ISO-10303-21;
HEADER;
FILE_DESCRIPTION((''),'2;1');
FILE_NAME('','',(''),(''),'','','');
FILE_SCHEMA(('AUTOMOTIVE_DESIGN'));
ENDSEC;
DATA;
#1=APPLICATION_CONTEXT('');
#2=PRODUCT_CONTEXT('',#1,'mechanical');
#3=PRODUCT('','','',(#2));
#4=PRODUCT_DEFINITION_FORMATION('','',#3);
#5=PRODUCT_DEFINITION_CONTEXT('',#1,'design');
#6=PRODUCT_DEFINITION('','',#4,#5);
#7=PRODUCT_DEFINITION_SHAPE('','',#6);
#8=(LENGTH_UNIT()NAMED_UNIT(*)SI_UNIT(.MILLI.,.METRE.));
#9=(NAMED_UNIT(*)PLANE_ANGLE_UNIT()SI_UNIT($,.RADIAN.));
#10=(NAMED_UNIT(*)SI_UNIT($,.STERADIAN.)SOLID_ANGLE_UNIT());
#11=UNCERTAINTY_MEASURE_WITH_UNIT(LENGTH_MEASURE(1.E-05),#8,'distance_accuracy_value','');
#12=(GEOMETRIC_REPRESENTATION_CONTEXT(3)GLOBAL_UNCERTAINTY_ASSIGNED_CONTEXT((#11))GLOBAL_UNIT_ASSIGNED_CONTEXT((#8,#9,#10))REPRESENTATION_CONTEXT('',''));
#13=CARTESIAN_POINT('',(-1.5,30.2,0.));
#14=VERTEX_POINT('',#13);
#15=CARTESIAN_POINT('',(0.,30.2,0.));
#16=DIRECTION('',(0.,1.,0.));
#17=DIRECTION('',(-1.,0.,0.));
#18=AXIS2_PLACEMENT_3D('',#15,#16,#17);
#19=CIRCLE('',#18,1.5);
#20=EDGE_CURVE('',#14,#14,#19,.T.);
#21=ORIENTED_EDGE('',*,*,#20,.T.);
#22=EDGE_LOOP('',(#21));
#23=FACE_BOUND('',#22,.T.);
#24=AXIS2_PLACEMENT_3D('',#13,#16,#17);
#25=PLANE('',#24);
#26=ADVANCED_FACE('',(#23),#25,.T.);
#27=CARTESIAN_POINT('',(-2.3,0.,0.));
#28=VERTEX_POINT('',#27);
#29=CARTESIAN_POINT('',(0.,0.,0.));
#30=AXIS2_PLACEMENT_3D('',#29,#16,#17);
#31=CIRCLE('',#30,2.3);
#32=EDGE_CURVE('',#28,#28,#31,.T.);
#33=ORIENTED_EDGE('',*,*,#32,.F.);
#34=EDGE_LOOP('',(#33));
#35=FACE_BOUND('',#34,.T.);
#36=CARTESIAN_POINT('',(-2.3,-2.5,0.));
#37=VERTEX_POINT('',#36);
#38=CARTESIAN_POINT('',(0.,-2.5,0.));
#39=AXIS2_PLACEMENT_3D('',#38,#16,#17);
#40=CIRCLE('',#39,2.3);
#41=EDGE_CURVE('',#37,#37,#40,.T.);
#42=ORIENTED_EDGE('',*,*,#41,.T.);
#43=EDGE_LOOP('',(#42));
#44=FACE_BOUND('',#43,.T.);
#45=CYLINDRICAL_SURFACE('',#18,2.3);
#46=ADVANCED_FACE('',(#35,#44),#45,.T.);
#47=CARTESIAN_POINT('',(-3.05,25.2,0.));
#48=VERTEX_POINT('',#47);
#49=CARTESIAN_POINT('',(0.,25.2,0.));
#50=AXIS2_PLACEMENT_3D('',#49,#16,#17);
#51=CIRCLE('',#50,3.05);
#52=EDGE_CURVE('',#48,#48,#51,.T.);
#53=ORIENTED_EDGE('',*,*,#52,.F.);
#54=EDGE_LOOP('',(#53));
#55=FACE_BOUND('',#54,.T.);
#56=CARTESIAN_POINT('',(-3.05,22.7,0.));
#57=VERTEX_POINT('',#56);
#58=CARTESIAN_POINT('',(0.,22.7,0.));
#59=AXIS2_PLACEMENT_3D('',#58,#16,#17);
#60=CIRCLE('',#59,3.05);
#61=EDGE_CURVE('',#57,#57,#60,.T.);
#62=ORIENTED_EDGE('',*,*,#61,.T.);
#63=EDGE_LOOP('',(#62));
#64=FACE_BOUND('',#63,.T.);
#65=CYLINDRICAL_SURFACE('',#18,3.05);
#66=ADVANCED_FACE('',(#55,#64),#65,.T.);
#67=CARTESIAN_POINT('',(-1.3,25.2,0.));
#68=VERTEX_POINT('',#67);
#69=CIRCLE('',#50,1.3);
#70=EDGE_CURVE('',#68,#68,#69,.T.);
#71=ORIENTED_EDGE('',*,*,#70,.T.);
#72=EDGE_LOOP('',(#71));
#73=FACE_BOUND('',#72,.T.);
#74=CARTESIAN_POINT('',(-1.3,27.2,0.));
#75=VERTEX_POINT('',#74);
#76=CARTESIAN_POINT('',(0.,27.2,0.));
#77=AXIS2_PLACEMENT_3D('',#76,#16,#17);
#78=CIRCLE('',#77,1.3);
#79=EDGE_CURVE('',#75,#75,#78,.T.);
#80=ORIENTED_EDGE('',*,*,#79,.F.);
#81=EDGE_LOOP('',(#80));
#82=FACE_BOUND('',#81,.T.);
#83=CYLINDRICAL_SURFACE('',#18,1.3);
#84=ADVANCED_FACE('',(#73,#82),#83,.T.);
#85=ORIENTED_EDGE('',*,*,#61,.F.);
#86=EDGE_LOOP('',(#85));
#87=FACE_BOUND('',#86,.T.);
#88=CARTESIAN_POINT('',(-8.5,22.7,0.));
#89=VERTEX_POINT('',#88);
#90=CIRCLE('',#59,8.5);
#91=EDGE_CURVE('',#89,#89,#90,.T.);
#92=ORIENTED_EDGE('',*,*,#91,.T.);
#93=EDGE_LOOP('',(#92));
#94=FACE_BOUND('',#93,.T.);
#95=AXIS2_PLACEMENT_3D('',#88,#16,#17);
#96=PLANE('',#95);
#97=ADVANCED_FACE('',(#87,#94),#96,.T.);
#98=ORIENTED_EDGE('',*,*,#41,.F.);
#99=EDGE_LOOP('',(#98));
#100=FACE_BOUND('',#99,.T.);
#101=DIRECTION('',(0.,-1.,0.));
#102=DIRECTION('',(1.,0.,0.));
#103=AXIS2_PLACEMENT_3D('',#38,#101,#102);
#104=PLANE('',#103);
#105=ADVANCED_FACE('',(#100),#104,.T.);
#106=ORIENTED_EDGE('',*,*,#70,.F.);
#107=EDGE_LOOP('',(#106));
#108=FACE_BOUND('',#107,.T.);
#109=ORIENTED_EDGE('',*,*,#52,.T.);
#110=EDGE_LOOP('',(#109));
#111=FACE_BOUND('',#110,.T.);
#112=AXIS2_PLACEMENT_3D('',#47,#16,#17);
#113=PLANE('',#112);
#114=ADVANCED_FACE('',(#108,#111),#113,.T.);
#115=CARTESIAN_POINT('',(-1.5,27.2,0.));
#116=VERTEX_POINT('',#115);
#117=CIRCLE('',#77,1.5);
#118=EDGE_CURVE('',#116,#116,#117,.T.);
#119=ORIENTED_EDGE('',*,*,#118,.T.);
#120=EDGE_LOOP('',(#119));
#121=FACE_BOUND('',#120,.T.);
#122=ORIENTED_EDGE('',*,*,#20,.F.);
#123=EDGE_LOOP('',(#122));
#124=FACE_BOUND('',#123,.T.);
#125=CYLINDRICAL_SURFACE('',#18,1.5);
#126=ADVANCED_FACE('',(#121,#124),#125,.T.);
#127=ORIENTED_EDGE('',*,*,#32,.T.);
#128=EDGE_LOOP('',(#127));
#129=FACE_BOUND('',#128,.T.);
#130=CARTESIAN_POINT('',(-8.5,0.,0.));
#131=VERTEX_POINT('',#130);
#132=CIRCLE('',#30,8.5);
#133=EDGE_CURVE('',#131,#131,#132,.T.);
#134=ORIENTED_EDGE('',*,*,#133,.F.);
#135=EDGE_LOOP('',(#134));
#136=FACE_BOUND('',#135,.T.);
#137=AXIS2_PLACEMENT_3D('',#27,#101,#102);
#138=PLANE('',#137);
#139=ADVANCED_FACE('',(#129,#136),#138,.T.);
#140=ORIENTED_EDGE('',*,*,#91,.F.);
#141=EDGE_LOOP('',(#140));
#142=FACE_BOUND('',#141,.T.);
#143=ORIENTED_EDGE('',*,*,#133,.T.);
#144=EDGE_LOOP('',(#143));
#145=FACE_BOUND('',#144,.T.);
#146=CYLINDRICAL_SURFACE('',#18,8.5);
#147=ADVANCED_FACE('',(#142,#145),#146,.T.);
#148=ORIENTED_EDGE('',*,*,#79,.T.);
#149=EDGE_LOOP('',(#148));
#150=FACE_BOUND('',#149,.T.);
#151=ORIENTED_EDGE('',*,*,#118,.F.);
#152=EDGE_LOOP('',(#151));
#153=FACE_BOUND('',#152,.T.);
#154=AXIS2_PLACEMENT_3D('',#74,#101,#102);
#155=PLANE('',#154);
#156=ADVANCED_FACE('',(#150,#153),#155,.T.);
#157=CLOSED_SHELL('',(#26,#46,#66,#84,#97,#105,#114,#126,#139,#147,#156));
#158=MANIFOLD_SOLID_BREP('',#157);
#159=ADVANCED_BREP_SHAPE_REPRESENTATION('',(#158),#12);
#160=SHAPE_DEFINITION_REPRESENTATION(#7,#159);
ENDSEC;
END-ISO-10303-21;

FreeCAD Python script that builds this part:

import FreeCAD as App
import Part
import Sketcher

V = App.Vector

doc = App.newDocument("Part")
body = doc.addObject("PartDesign::Body", "Body")

# Sketch on XY plane
sketch1 = body.newObject("Sketcher::SketchObject", "Sketch")
sketch1.AttachmentSupport = (doc.getObject("XY_Plane"), [""])
sketch1.MapMode = "FlatFace"
sketch1.addGeometry([
    Part.LineSegment(V(-8.5, 0, 0), V(-2.3, 0, 0)),  # 0
    Part.LineSegment(V(-2.3, 0, 0), V(-2.3, -2.5, 0)),  # 1
    Part.LineSegment(V(-2.3, -2.5, 0), V(0, -2.5, 0)),  # 2
    Part.LineSegment(V(0, -2.5, 0), V(0, 30.2, 0)),  # 3
    Part.LineSegment(V(0, 30.2, 0), V(-1.5, 30.2, 0)),  # 4
    Part.LineSegment(V(-1.5, 30.2, 0), V(-1.5, 27.2, 0)),  # 5
    Part.LineSegment(V(-1.5, 27.2, 0), V(-1.3, 27.2, 0)),  # 6
    Part.LineSegment(V(-1.3, 27.2, 0), V(-1.3, 25.2, 0)),  # 7
    Part.LineSegment(V(-1.3, 25.2, 0), V(-3.05, 25.2, 0)),  # 8
    Part.LineSegment(V(-3.05, 25.2, 0), V(-3.05, 22.7, 0)),  # 9
    Part.LineSegment(V(-3.05, 22.7, 0), V(-8.5, 22.7, 0)),  # 10
    Part.LineSegment(V(-8.5, 22.7, 0), V(-8.5, 0, 0)),  # 11
], False)
sketch1.addConstraint([
    Sketcher.Constraint("Coincident", 0, 2, 1, 1),
    Sketcher.Constraint("Coincident", 1, 2, 2, 1),
    Sketcher.Constraint("Coincident", 2, 2, 3, 1),
    Sketcher.Constraint("Coincident", 3, 2, 4, 1),
    Sketcher.Constraint("Coincident", 4, 2, 5, 1),
    Sketcher.Constraint("Coincident", 5, 2, 6, 1),
    Sketcher.Constraint("Coincident", 6, 2, 7, 1),
    Sketcher.Constraint("Coincident", 7, 2, 8, 1),
    Sketcher.Constraint("Coincident", 8, 2, 9, 1),
    Sketcher.Constraint("Coincident", 9, 2, 10, 1),
    Sketcher.Constraint("Coincident", 10, 2, 11, 1),
    Sketcher.Constraint("Coincident", 11, 2, 0, 1),
    Sketcher.Constraint("Horizontal", 0),
    Sketcher.Constraint("Vertical", 1),
    Sketcher.Constraint("Horizontal", 2),
    Sketcher.Constraint("Vertical", 3),
    Sketcher.Constraint("Horizontal", 4),
    Sketcher.Constraint("Vertical", 5),
    Sketcher.Constraint("Horizontal", 6),
    Sketcher.Constraint("Vertical", 7),
    Sketcher.Constraint("Horizontal", 8),
    Sketcher.Constraint("Vertical", 9),
    Sketcher.Constraint("Horizontal", 10),
    Sketcher.Constraint("Vertical", 11),
    Sketcher.Constraint("PointOnObject", 0, 2, -1),
    Sketcher.Constraint("PointOnObject", 2, 2, -2),
    Sketcher.Constraint("Equal", 1, 9),
    Sketcher.Constraint("DistanceY", 5, 2, 5, 1, 3.0),
    Sketcher.Constraint("DistanceY", 7, 2, 7, 1, 2.0),
    Sketcher.Constraint("DistanceX", 0, 1, 0, 2, 6.2),
    Sketcher.Constraint("DistanceX", 2, 1, 2, 2, 2.3),
    Sketcher.Constraint("DistanceX", 4, 2, 4, 1, 1.5),
    Sketcher.Constraint("DistanceX", 6, 1, 6, 2, 0.2),
    Sketcher.Constraint("DistanceY", 1, 2, 1, 1, 2.5),
    Sketcher.Constraint("DistanceY", 3, 1, 3, 2, 32.7),
    Sketcher.Constraint("DistanceX", 8, 2, 8, 1, 1.75),
])
revolution = body.newObject("PartDesign::Revolution", "Revolution")
revolution.Profile = sketch1
revolution.ReferenceAxis = (sketch1, ["V_Axis"])
revolution.Angle = 360

doc.recompute()
